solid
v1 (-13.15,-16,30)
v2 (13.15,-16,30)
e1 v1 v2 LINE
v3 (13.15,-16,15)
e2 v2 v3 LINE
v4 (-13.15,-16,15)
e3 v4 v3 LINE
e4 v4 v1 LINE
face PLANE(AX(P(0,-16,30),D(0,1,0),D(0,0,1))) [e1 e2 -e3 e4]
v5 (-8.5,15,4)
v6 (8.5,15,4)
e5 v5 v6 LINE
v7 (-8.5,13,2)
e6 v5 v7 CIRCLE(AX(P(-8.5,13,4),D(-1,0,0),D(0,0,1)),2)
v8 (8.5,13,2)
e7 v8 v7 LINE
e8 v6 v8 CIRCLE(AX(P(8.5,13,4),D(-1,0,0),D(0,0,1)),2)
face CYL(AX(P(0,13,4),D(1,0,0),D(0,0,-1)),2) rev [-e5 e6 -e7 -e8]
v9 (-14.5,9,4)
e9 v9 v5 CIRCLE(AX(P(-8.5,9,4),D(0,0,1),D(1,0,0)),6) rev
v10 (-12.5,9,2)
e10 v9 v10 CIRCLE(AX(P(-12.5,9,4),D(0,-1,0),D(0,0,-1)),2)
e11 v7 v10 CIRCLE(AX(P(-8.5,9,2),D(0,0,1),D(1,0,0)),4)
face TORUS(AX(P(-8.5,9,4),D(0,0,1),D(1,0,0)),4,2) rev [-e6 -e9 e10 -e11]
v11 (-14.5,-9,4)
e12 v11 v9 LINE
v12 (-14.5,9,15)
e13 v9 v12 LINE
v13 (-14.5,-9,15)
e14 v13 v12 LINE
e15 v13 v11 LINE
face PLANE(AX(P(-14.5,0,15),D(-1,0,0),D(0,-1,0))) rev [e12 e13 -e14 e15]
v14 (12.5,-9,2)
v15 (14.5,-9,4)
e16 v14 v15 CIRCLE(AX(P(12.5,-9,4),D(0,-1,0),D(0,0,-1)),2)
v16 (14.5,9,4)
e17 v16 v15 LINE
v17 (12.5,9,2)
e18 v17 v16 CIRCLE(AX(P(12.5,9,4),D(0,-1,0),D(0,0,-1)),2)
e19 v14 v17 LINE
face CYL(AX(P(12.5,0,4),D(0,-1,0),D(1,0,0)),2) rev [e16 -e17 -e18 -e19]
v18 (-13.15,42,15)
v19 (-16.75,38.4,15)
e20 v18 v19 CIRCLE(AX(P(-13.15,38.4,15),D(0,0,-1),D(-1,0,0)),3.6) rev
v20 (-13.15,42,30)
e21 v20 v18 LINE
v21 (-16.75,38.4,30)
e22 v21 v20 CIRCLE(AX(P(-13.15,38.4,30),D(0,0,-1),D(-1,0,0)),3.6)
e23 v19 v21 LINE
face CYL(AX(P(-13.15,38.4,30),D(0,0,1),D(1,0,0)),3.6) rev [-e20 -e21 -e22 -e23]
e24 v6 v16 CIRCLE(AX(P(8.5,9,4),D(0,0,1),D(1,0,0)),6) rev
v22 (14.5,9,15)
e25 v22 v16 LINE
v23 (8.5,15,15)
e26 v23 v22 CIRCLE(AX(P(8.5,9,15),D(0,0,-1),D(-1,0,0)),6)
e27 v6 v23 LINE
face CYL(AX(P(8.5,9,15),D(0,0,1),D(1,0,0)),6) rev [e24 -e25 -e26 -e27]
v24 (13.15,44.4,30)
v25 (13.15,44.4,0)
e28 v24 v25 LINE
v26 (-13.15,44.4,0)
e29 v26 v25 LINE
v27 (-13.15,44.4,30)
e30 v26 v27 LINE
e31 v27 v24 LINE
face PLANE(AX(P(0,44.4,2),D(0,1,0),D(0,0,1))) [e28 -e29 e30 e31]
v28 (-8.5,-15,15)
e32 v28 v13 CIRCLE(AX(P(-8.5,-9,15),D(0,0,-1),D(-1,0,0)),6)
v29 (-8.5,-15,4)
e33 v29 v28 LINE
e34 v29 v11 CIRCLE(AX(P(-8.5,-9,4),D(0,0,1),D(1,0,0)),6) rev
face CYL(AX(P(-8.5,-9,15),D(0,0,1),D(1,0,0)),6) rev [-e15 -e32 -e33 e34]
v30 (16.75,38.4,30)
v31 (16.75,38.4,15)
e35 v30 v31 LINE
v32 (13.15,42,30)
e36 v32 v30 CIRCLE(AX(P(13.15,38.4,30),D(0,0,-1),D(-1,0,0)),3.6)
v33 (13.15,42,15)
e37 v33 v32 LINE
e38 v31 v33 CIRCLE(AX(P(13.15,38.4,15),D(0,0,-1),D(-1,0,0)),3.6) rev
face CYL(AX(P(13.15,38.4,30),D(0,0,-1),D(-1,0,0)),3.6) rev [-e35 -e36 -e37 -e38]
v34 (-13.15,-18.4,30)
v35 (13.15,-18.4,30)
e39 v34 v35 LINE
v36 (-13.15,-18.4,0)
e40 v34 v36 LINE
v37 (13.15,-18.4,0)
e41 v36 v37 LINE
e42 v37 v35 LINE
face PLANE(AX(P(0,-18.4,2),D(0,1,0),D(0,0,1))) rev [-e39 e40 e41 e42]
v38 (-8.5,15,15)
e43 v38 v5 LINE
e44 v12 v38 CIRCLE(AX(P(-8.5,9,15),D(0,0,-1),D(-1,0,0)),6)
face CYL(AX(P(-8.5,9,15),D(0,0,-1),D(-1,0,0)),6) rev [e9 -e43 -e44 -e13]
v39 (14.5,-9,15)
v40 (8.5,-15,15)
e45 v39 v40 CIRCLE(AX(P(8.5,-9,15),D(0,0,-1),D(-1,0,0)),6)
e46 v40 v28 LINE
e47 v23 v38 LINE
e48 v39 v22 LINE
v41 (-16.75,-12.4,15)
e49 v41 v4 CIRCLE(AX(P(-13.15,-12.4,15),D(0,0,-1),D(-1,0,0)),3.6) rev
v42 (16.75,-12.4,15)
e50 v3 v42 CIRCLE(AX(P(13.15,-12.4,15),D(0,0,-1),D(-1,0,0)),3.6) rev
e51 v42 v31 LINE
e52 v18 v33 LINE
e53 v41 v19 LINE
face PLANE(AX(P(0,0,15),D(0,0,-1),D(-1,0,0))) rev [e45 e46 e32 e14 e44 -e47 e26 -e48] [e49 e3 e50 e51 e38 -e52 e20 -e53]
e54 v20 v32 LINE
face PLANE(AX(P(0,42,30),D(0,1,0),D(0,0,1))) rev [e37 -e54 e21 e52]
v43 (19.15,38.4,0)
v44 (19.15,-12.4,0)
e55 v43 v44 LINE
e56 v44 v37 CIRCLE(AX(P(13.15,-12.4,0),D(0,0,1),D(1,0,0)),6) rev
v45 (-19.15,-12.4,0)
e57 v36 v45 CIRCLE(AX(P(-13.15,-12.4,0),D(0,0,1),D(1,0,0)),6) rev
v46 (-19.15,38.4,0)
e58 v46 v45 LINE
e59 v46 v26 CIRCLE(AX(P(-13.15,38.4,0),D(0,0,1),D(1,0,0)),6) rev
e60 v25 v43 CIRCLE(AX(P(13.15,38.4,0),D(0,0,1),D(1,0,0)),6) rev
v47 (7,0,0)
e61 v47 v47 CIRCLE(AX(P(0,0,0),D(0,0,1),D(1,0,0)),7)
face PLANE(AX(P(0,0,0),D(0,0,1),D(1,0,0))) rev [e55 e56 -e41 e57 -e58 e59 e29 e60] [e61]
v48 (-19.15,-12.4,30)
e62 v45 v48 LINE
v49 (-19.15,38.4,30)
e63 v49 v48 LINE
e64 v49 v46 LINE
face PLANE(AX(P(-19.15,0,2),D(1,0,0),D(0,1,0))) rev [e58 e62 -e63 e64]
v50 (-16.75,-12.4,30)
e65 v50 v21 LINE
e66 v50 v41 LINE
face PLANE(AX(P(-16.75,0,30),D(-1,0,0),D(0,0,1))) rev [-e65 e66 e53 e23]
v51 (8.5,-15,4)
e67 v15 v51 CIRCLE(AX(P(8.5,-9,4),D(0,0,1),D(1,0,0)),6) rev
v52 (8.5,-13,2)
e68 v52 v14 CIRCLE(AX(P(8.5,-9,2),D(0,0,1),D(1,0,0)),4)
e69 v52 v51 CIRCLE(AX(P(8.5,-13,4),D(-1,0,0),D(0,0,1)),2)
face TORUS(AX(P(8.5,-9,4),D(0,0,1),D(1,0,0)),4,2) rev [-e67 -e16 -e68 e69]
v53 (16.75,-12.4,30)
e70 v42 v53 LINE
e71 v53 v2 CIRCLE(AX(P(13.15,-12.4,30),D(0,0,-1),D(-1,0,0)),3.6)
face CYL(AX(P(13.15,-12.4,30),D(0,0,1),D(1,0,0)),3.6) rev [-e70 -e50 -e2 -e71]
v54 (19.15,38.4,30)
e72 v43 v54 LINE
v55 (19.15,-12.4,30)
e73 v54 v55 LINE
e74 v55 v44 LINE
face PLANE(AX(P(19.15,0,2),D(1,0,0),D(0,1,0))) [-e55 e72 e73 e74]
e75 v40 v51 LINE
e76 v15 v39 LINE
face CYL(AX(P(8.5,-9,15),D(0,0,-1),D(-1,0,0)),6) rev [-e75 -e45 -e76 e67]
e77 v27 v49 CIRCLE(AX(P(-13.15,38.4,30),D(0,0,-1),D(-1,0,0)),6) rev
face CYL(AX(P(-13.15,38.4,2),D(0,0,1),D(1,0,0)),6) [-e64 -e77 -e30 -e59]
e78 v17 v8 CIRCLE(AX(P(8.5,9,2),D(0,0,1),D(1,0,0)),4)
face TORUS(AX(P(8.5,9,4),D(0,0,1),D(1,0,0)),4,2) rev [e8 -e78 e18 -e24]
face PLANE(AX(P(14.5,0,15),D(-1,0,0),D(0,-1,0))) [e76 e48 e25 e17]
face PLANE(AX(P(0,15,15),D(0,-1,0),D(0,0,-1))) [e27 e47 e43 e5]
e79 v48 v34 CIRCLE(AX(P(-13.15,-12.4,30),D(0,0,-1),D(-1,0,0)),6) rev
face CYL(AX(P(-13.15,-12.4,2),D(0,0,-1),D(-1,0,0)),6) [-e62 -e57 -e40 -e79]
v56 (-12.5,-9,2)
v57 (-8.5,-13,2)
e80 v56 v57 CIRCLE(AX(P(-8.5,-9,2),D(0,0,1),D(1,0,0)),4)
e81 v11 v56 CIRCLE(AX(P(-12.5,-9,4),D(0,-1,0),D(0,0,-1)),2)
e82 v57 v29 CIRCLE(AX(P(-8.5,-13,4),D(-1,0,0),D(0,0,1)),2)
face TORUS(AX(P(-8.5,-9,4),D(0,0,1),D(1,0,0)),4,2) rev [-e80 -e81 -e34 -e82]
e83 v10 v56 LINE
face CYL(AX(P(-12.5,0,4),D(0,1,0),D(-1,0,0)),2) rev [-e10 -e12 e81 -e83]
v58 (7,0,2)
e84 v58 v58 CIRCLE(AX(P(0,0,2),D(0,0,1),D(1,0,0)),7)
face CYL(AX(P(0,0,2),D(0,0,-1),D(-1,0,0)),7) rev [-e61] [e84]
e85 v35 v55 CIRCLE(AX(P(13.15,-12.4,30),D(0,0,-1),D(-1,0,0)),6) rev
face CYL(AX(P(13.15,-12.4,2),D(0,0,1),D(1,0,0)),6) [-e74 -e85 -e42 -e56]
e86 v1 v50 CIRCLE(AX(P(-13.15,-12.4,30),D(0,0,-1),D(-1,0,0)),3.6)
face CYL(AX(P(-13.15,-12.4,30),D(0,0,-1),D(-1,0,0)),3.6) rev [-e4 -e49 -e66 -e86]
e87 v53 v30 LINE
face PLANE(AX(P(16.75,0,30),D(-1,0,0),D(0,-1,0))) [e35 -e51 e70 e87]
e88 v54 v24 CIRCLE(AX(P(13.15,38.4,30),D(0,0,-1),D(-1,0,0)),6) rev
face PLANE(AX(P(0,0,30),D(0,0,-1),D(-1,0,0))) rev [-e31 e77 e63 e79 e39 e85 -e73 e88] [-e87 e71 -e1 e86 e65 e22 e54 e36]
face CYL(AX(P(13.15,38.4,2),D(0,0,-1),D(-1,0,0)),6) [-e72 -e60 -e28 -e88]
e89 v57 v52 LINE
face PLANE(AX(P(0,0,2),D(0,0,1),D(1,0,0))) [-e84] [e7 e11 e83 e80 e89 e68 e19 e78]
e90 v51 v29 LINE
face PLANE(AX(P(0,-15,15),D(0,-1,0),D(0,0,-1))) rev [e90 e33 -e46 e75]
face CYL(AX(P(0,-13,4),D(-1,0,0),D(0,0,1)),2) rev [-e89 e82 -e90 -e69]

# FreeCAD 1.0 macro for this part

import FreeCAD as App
import Part
import Sketcher

V = App.Vector


def edges_at(feature, points):
    """Names of the edges that pass closest to the given points."""
    edges = feature.Shape.Edges
    near = lambda p: min(range(len(edges)), key=lambda i: edges[i].distToShape(Part.Vertex(*p))[0])
    return sorted({f"Edge{near(p) + 1}" for p in points})


def add_polygon(sketch, points):
    """Adds a closed chain of lines whose ends are joined by coincident constraints."""
    first, n = sketch.GeometryCount, len(points)
    for a, b in zip(points, points[1:] + points[:1]):
        sketch.addGeometry(Part.LineSegment(App.Vector(*a, 0), App.Vector(*b, 0)), False)
    for i in range(n):
        sketch.addConstraint(Sketcher.Constraint("Coincident", first + i, 2, first + (i + 1) % n, 1))

doc = App.newDocument("Part")
params = doc.addObject("Spreadsheet::Sheet", "Params")
for row, (alias, value) in enumerate([
    ("sketch1_diameter", "14 mm"),
    ("sketch1_width", "38.3 mm"),
    ("sketch1_height", "62.8 mm"),
    ("pad1_length", "2 mm"),
    ("sketch2_width", "29 mm"),
    ("sketch2_height", "30 mm"),
    ("sketch2_width2", "38.3 mm"),
    ("sketch2_height2", "62.8 mm"),
    ("pad2_length", "13 mm"),
    ("sketch3_height", "58 mm"),
    ("sketch3_width", "38.3 mm"),
    ("sketch3_width2", "33.5 mm"),
    ("sketch3_height2", "62.8 mm"),
    ("pad3_length", "15 mm"),
    ("fillet_radius", "3.6 mm"),
    ("fillet2_radius", "6 mm"),
    ("fillet3_radius", "2 mm"),
], start=1):
    params.set(f"A{row}", alias)
    params.set(f"B{row}", "=" + value)
    params.setAlias(f"B{row}", alias)

body = doc.addObject("PartDesign::Body", "Body")

sketch1 = body.newObject("Sketcher::SketchObject", "Sketch")
sketch1.AttachmentSupport = (doc.getObject("XY_Plane"), [""])
sketch1.MapMode = "FlatFace"
add_polygon(sketch1, [(-19.15, 44.4), (-19.15, -18.4), (19.15, -18.4), (19.15, 44.4)])
sketch1.addGeometry(Part.Circle(V(0, 0, 0), V(0, 0, 1), 7), False)
sketch1.addConstraint([
    Sketcher.Constraint("Vertical", 0),
    Sketcher.Constraint("Horizontal", 1),
    Sketcher.Constraint("Vertical", 2),
    Sketcher.Constraint("Horizontal", 3),
    Sketcher.Constraint("Coincident", 4, 3, -1, 1),
    Sketcher.Constraint("Diameter", 4, 14.0),
    Sketcher.Constraint("DistanceX", 1, 1, 1, 2, 38.3),
    Sketcher.Constraint("DistanceY", 0, 2, 0, 1, 62.8),
    Sketcher.Constraint("DistanceY", 0, 2, -1, 1, 18.4),
    Sketcher.Constraint("DistanceX", 0, 2, -1, 1, 19.15),
])
sketch1.setExpression("Constraints[9]", "Params.sketch1_diameter")
sketch1.setExpression("Constraints[10]", "Params.sketch1_width")
sketch1.setExpression("Constraints[11]", "Params.sketch1_height")
pad1 = body.newObject("PartDesign::Pad", "Pad")
pad1.Profile = sketch1
pad1.setExpression("Length", "Params.pad1_length")

sketch2 = body.newObject("Sketcher::SketchObject", "Sketch001")
sketch2.AttachmentSupport = (doc.getObject("XY_Plane"), [""])
sketch2.MapMode = "FlatFace"
sketch2.AttachmentOffset = App.Placement(V(0, 0, 2), App.Rotation())
add_polygon(sketch2, [(-19.15, 44.4), (-19.15, -18.4), (19.15, -18.4), (19.15, 44.4)])
add_polygon(sketch2, [(14.5, -15), (-14.5, -15), (-14.5, 15), (14.5, 15)])
sketch2.addConstraint([
    Sketcher.Constraint("Vertical", 0),
    Sketcher.Constraint("Horizontal", 1),
    Sketcher.Constraint("Vertical", 2),
    Sketcher.Constraint("Horizontal", 3),
    Sketcher.Constraint("Horizontal", 4),
    Sketcher.Constraint("Vertical", 5),
    Sketcher.Constraint("Horizontal", 6),
    Sketcher.Constraint("Vertical", 7),
    Sketcher.Constraint("Symmetric", 4, 2, 6, 2, -1, 1),
    Sketcher.Constraint("DistanceX", 4, 2, 4, 1, 29.0),
    Sketcher.Constraint("DistanceY", 5, 1, 5, 2, 30.0),
    Sketcher.Constraint("DistanceX", 1, 1, 1, 2, 38.3),
    Sketcher.Constraint("DistanceY", 0, 2, 0, 1, 62.8),
    Sketcher.Constraint("DistanceY", 0, 2, -1, 1, 18.4),
    Sketcher.Constraint("DistanceX", 0, 2, -1, 1, 19.15),
])
sketch2.setExpression("Constraints[17]", "Params.sketch2_width")
sketch2.setExpression("Constraints[18]", "Params.sketch2_height")
sketch2.setExpression("Constraints[19]", "Params.sketch2_width2")
sketch2.setExpression("Constraints[20]", "Params.sketch2_height2")
pad2 = body.newObject("PartDesign::Pad", "Pad001")
pad2.Profile = sketch2
pad2.setExpression("Length", "Params.pad2_length")

sketch3 = body.newObject("Sketcher::SketchObject", "Sketch002")
sketch3.AttachmentSupport = (doc.getObject("XY_Plane"), [""])
sketch3.MapMode = "FlatFace"
sketch3.AttachmentOffset = App.Placement(V(0, 0, 15), App.Rotation())
add_polygon(sketch3, [(-19.15, 44.4), (-19.15, -18.4), (19.15, -18.4), (19.15, 44.4)])
add_polygon(sketch3, [(16.75, -16), (-16.75, -16), (-16.75, 42), (16.75, 42)])
sketch3.addConstraint([
    Sketcher.Constraint("Vertical", 0),
    Sketcher.Constraint("Horizontal", 1),
    Sketcher.Constraint("Vertical", 2),
    Sketcher.Constraint("Horizontal", 3),
    Sketcher.Constraint("Horizontal", 4),
    Sketcher.Constraint("Vertical", 5),
    Sketcher.Constraint("Horizontal", 6),
    Sketcher.Constraint("Vertical", 7),
    Sketcher.Constraint("DistanceY", 5, 1, 5, 2, 58.0),
    Sketcher.Constraint("DistanceX", 1, 1, 1, 2, 38.3),
    Sketcher.Constraint("DistanceX", 4, 2, 4, 1, 33.5),
    Sketcher.Constraint("DistanceY", 0, 2, 0, 1, 62.8),
    Sketcher.Constraint("DistanceY", 4, 2, -1, 1, 16.0),
    Sketcher.Constraint("DistanceY", 0, 2, -1, 1, 18.4),
    Sketcher.Constraint("DistanceX", 0, 2, 4, 2, 2.4),
    Sketcher.Constraint("DistanceX", 0, 2, -1, 1, 19.15),
])
sketch3.setExpression("Constraints[16]", "Params.sketch3_height")
sketch3.setExpression("Constraints[17]", "Params.sketch3_width")
sketch3.setExpression("Constraints[18]", "Params.sketch3_width2")
sketch3.setExpression("Constraints[19]", "Params.sketch3_height2")
pad3 = body.newObject("PartDesign::Pad", "Pad002")
pad3.Profile = sketch3
pad3.setExpression("Length", "Params.pad3_length")
doc.recompute()

fillet = body.newObject("PartDesign::Fillet", "Fillet")
fillet.Base = (pad3, edges_at(pad3, [
    (-16.75, 42, 22.5),
    (-16.75, -16, 22.5),
    (16.75, -16, 22.5),
    (16.75, 42, 22.5),
]))
fillet.setExpression("Radius", "Params.fillet_radius")
doc.recompute()

fillet2 = body.newObject("PartDesign::Fillet", "Fillet001")
fillet2.Base = (fillet, edges_at(fillet, [
    (19.15, -18.4, 15),
    (-19.15, -18.4, 15),
    (-19.15, 44.4, 15),
    (19.15, 44.4, 15),
    (14.5, -15, 8.5),
    (14.5, 15, 8.5),
    (-14.5, 15, 8.5),
    (-14.5, -15, 8.5),
]))
fillet2.setExpression("Radius", "Params.fillet2_radius")
doc.recompute()

fillet3 = body.newObject("PartDesign::Fillet", "Fillet002")
fillet3.Base = (fillet2, edges_at(fillet2, [
    (-14.5, 0, 2),
    (0, -15, 2),
    (14.5, 0, 2),
    (0, 15, 2),
    (12.743, 13.243, 2),
    (12.743, -13.243, 2),
    (-12.743, 13.243, 2),
    (-12.743, -13.243, 2),
]))
fillet3.setExpression("Radius", "Params.fillet3_radius")

doc.recompute()
